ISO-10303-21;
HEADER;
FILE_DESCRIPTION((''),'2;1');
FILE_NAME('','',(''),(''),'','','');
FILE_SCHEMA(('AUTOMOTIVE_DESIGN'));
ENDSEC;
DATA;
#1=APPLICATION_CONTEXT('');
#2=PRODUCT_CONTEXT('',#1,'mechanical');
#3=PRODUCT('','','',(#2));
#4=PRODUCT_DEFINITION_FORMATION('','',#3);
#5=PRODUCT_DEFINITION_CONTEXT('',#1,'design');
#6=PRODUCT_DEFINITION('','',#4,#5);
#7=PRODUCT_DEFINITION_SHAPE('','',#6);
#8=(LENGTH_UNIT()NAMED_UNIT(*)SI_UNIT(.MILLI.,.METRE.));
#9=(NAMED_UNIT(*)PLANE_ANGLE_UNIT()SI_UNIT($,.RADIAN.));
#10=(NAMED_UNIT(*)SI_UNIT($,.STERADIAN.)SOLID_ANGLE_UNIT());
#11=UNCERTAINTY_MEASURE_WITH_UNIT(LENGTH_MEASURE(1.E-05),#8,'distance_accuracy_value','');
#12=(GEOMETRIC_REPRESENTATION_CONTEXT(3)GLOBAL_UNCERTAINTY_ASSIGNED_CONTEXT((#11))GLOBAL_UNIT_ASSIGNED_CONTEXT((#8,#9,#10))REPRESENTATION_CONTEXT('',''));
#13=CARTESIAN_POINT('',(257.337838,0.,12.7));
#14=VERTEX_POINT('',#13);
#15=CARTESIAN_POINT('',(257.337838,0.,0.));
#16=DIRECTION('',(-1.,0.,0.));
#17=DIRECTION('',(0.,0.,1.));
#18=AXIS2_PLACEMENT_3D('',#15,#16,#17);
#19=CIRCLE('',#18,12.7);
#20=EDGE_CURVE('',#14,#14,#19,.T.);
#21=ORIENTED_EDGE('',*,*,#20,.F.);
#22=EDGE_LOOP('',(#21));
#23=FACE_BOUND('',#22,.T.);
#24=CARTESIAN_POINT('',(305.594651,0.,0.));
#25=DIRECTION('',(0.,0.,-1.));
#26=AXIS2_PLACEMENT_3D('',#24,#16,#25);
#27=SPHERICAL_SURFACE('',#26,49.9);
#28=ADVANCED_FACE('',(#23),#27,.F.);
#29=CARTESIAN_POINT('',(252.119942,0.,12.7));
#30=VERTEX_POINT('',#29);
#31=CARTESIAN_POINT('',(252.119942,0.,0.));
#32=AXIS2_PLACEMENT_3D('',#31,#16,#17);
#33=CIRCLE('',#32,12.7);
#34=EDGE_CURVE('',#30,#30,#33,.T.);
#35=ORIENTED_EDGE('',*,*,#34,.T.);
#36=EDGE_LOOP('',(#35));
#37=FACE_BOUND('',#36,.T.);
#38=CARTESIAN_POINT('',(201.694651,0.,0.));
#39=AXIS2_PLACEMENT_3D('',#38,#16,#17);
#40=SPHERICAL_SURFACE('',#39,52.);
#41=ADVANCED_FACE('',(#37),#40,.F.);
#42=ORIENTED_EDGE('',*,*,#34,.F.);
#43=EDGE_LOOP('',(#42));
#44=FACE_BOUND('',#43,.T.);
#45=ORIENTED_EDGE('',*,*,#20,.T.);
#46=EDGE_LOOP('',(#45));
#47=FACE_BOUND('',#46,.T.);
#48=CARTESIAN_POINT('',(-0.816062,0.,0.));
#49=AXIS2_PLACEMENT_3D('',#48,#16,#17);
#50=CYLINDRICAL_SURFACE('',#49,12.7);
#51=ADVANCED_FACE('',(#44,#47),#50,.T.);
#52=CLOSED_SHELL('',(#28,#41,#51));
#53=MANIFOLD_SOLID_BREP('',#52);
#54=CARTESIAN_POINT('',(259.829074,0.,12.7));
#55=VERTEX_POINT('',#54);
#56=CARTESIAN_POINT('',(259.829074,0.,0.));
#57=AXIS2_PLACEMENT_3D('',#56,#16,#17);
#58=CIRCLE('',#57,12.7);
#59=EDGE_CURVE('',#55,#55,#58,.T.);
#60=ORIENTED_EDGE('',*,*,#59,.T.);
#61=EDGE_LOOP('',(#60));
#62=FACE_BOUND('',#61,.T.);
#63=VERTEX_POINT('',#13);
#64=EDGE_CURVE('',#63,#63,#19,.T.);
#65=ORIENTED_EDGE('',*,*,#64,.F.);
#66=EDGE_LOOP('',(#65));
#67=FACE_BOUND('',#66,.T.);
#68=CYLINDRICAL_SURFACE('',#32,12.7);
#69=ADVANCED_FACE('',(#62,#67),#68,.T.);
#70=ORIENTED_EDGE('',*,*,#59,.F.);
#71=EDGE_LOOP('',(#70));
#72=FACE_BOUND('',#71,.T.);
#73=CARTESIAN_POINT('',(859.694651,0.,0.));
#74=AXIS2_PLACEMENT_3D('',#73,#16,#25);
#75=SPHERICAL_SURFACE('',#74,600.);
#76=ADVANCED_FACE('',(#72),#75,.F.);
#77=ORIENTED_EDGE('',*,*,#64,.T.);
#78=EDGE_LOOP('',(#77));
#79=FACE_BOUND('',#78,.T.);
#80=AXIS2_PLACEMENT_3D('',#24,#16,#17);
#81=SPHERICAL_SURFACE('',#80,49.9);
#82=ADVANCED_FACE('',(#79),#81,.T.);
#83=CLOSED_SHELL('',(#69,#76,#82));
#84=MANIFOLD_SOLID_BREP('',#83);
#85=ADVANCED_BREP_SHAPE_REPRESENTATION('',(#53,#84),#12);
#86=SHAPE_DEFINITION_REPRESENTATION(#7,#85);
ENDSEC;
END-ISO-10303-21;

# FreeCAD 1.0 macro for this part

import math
import FreeCAD as App
import Part
import Sketcher
from FreeCAD import Vector

doc = App.newDocument("Part")
body = doc.addObject("PartDesign::Body", "Body")

# Sketch on XZ plane
sketch1 = body.newObject("Sketcher::SketchObject", "Sketch")
sketch1.AttachmentSupport = (doc.getObject("XZ_Plane"), [""])
sketch1.MapMode = "FlatFace"
sketch1.addGeometry([
    Part.LineSegment(Vector(257.337838, -12.7, 0), Vector(252.119942, -12.7, 0)),
    Part.ArcOfCircle(Part.Circle(Vector(201.694651, 0, 0), Vector(0, 0, 1), 52), math.radians(-14.136379), math.radians(0)),
    Part.LineSegment(Vector(253.694651, 0, 0), Vector(255.694651, 0, 0)),
    Part.ArcOfCircle(Part.Circle(Vector(305.59465, 0, 0), Vector(0, 0, 1), 49.9), math.radians(180), math.radians(194.744494)),
], False)
sketch1.addConstraint([
    Sketcher.Constraint("Coincident", 0, 2, 1, 1),
    Sketcher.Constraint("Coincident", 1, 2, 2, 1),
    Sketcher.Constraint("Coincident", 2, 2, 3, 1),
    Sketcher.Constraint("Coincident", 3, 2, 0, 1),
    Sketcher.Constraint("Horizontal", 0),
    Sketcher.Constraint("Horizontal", 2),
    Sketcher.Constraint("PointOnObject", 1, 3, -1),
    Sketcher.Constraint("PointOnObject", 3, 3, -1),
    Sketcher.Constraint("PointOnObject", 1, 2, -1),
    Sketcher.Constraint("Radius", 1, 52.0),
    Sketcher.Constraint("Radius", 3, 49.9),
    Sketcher.Constraint("DistanceX", 2, 1, 2, 2, 2.0),
    Sketcher.Constraint("DistanceY", 0, 2, -1, 1, 12.7),
    Sketcher.Constraint("DistanceX", -1, 1, 1, 3, 201.694651),
])
revolution = body.newObject("PartDesign::Revolution", "Revolution")
revolution.Profile = sketch1
revolution.ReferenceAxis = (sketch1, ["H_Axis"])
revolution.Angle = 360
body2 = doc.addObject("PartDesign::Body", "Body001")

# Sketch on XZ plane
sketch2 = body2.newObject("Sketcher::SketchObject", "Sketch001")
sketch2.AttachmentSupport = (doc.getObject("XZ_Plane001"), [""])
sketch2.MapMode = "FlatFace"
sketch2.addGeometry([
    Part.LineSegment(Vector(259.829074, -12.7, 0), Vector(257.337838, -12.7, 0)),
    Part.ArcOfCircle(Part.Circle(Vector(305.59465, 0, 0), Vector(0, 0, 1), 49.9), math.radians(180), math.radians(194.744494)),
    Part.LineSegment(Vector(255.694651, 0, 0), Vector(259.694651, 0, 0)),
    Part.ArcOfCircle(Part.Circle(Vector(859.694653, 0, 0), Vector(0, 0, 1), 600.000003), math.radians(-180), math.radians(-178.787149)),
], False)
sketch2.addConstraint([
    Sketcher.Constraint("Coincident", 0, 2, 1, 2),
    Sketcher.Constraint("Coincident", 1, 1, 2, 1),
    Sketcher.Constraint("Coincident", 2, 2, 3, 1),
    Sketcher.Constraint("Coincident", 3, 2, 0, 1),
    Sketcher.Constraint("Horizontal", 0),
    Sketcher.Constraint("Horizontal", 2),
    Sketcher.Constraint("PointOnObject", 1, 3, -1),
    Sketcher.Constraint("PointOnObject", 3, 3, -1),
    Sketcher.Constraint("PointOnObject", 1, 1, -1),
    Sketcher.Constraint("Radius", 1, 49.9),
    Sketcher.Constraint("DistanceX", 2, 1, 2, 2, 4.0),
    Sketcher.Constraint("DistanceY", 0, 2, -1, 1, 12.7),
    Sketcher.Constraint("Radius", 3, 600.000003),
    Sketcher.Constraint("DistanceX", -1, 1, 1, 3, 305.59465),
])
revolution2 = body2.newObject("PartDesign::Revolution", "Revolution001")
revolution2.Profile = sketch2
revolution2.ReferenceAxis = (sketch2, ["H_Axis"])
revolution2.Angle = 360

doc.recompute()
